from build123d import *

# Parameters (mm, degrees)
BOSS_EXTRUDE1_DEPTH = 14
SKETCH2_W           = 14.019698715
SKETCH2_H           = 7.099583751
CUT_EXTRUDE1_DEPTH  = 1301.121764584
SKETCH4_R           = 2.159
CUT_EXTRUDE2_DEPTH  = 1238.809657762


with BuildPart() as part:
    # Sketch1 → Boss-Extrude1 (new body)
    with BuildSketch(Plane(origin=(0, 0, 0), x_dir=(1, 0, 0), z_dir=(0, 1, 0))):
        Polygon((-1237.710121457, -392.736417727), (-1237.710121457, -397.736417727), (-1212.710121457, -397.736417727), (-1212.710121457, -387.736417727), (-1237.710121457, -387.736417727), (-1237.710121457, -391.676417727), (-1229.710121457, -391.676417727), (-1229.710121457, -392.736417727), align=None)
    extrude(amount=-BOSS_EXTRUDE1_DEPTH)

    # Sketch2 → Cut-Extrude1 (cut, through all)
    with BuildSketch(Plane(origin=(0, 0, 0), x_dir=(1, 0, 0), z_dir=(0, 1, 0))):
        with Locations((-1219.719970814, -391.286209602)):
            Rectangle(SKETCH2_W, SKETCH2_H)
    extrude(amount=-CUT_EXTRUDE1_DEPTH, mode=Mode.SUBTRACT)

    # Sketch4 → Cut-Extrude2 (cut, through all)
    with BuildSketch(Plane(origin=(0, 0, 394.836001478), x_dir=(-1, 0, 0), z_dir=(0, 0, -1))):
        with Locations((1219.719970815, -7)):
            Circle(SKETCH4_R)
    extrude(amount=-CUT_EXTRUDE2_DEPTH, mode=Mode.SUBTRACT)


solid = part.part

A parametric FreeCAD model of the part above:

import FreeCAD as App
import Part
import Sketcher

V = App.Vector
Q = App.Units.Quantity

doc = App.newDocument("Part")
body = doc.addObject("PartDesign::Body", "Body")

sketch1 = body.newObject("Sketcher::SketchObject", "Sketch")
sketch1.AttachmentSupport = (doc.getObject("XZ_Plane"), [""])
sketch1.MapMode = "FlatFace"
sketch1.addGeometry(Part.LineSegment(V(-1237.7, 392.7, 0), V(-1237.7, 397.7, 0)), False)
sketch1.addGeometry(Part.LineSegment(V(-1237.7, 397.7, 0), V(-1212.7, 397.7, 0)), False)
sketch1.addGeometry(Part.LineSegment(V(-1212.7, 397.7, 0), V(-1212.7, 387.7, 0)), False)
sketch1.addGeometry(Part.LineSegment(V(-1212.7, 387.7, 0), V(-1237.7, 387.7, 0)), False)
sketch1.addGeometry(Part.LineSegment(V(-1237.7, 387.7, 0), V(-1237.7, 391.7, 0)), False)
sketch1.addGeometry(Part.LineSegment(V(-1237.7, 391.7, 0), V(-1229.7, 391.7, 0)), False)
sketch1.addGeometry(Part.LineSegment(V(-1229.7, 391.7, 0), V(-1229.7, 392.7, 0)), False)
sketch1.addGeometry(Part.LineSegment(V(-1229.7, 392.7, 0), V(-1237.7, 392.7, 0)), False)
sketch1.addConstraint(Sketcher.Constraint("Coincident", 0, 2, 1, 1))
sketch1.addConstraint(Sketcher.Constraint("Coincident", 1, 2, 2, 1))
sketch1.addConstraint(Sketcher.Constraint("Coincident", 2, 2, 3, 1))
sketch1.addConstraint(Sketcher.Constraint("Coincident", 3, 2, 4, 1))
sketch1.addConstraint(Sketcher.Constraint("Coincident", 4, 2, 5, 1))
sketch1.addConstraint(Sketcher.Constraint("Coincident", 5, 2, 6, 1))
sketch1.addConstraint(Sketcher.Constraint("Coincident", 6, 2, 7, 1))
sketch1.addConstraint(Sketcher.Constraint("Coincident", 7, 2, 0, 1))
sketch1.addConstraint(Sketcher.Constraint("Vertical", 0))
sketch1.addConstraint(Sketcher.Constraint("Horizontal", 1))
sketch1.addConstraint(Sketcher.Constraint("Vertical", 2))
sketch1.addConstraint(Sketcher.Constraint("Horizontal", 3))
sketch1.addConstraint(Sketcher.Constraint("Vertical", 4))
sketch1.addConstraint(Sketcher.Constraint("Horizontal", 5))
sketch1.addConstraint(Sketcher.Constraint("Vertical", 6))
sketch1.addConstraint(Sketcher.Constraint("Horizontal", 7))
sketch1.addConstraint(Sketcher.Constraint("Vertical", 0, 2, 3, 2))
sketch1.addConstraint(Sketcher.Constraint("DistanceX", 1, 1, 1, 2, Q("25 mm")))
sketch1.addConstraint(Sketcher.Constraint("DistanceX", 5, 1, 5, 2, Q("8 mm")))
sketch1.addConstraint(Sketcher.Constraint("DistanceY", 0, 1, 0, 2, Q("5 mm")))
sketch1.addConstraint(Sketcher.Constraint("DistanceY", 2, 2, 2, 1, Q("10 mm")))
sketch1.addConstraint(Sketcher.Constraint("DistanceY", 4, 1, 4, 2, Q("3.94 mm")))
sketch1.addConstraint(Sketcher.Constraint("DistanceX", 0, 2, -1, 1, Q("1237.710121 mm")))
sketch1.addConstraint(Sketcher.Constraint("DistanceY", -1, 1, 0, 2, Q("397.736418 mm")))
pad1 = body.newObject("PartDesign::Pad", "Pad")
pad1.Profile = sketch1
pad1.Length = 14

sketch2 = body.newObject("Sketcher::SketchObject", "Sketch001")
sketch2.AttachmentSupport = (doc.getObject("XZ_Plane"), [""])
sketch2.MapMode = "FlatFace"
sketch2.addGeometry(Part.LineSegment(V(-1227, 388, 0), V(-1227, 395, 0)), False)
sketch2.addGeometry(Part.LineSegment(V(-1227, 395, 0), V(-1213, 395, 0)), False)
sketch2.addGeometry(Part.LineSegment(V(-1213, 395, 0), V(-1213, 388, 0)), False)
sketch2.addGeometry(Part.LineSegment(V(-1213, 388, 0), V(-1227, 388, 0)), False)
sketch2.addConstraint(Sketcher.Constraint("Coincident", 0, 2, 1, 1))
sketch2.addConstraint(Sketcher.Constraint("Coincident", 1, 2, 2, 1))
sketch2.addConstraint(Sketcher.Constraint("Coincident", 2, 2, 3, 1))
sketch2.addConstraint(Sketcher.Constraint("Coincident", 3, 2, 0, 1))
sketch2.addConstraint(Sketcher.Constraint("Vertical", 0))
sketch2.addConstraint(Sketcher.Constraint("Horizontal", 1))
sketch2.addConstraint(Sketcher.Constraint("Vertical", 2))
sketch2.addConstraint(Sketcher.Constraint("Horizontal", 3))
sketch2.addConstraint(Sketcher.Constraint("DistanceX", 1, 1, 1, 2, Q("14.019699 mm")))
sketch2.addConstraint(Sketcher.Constraint("DistanceY", -1, 1, 0, 2, Q("394.836001 mm")))
sketch2.addConstraint(Sketcher.Constraint("DistanceY", 0, 1, 0, 2, Q("7.099584 mm")))
sketch2.addConstraint(Sketcher.Constraint("DistanceX", 0, 2, -1, 1, Q("1226.72982 mm")))
pocket1 = body.newObject("PartDesign::Pocket", "Pocket")
pocket1.Profile = sketch2
pocket1.Type = "ThroughAll"
pocket1.Reversed = True

sketch3 = body.newObject("Sketcher::SketchObject", "Sketch002")
sketch3.AttachmentSupport = (doc.getObject("XY_Plane"), [""])
sketch3.MapMode = "FlatFace"
sketch3.AttachmentOffset = App.Placement(V(0, 0, 394.836001), App.Rotation())
sketch3.addGeometry(Part.Circle(V(-1219.7, -7, 0), V(0, 0, 1), 2.2), False)
sketch3.addConstraint(Sketcher.Constraint("Diameter", 0, Q("4.318 mm")))
sketch3.addConstraint(Sketcher.Constraint("DistanceY", 0, 3, -1, 1, Q("7 mm")))
sketch3.addConstraint(Sketcher.Constraint("DistanceX", 0, 3, -1, 1, Q("1219.719971 mm")))
pocket2 = body.newObject("PartDesign::Pocket", "Pocket001")
pocket2.Profile = sketch3
pocket2.Type = "ThroughAll"
pocket2.Reversed = True

doc.recompute()
